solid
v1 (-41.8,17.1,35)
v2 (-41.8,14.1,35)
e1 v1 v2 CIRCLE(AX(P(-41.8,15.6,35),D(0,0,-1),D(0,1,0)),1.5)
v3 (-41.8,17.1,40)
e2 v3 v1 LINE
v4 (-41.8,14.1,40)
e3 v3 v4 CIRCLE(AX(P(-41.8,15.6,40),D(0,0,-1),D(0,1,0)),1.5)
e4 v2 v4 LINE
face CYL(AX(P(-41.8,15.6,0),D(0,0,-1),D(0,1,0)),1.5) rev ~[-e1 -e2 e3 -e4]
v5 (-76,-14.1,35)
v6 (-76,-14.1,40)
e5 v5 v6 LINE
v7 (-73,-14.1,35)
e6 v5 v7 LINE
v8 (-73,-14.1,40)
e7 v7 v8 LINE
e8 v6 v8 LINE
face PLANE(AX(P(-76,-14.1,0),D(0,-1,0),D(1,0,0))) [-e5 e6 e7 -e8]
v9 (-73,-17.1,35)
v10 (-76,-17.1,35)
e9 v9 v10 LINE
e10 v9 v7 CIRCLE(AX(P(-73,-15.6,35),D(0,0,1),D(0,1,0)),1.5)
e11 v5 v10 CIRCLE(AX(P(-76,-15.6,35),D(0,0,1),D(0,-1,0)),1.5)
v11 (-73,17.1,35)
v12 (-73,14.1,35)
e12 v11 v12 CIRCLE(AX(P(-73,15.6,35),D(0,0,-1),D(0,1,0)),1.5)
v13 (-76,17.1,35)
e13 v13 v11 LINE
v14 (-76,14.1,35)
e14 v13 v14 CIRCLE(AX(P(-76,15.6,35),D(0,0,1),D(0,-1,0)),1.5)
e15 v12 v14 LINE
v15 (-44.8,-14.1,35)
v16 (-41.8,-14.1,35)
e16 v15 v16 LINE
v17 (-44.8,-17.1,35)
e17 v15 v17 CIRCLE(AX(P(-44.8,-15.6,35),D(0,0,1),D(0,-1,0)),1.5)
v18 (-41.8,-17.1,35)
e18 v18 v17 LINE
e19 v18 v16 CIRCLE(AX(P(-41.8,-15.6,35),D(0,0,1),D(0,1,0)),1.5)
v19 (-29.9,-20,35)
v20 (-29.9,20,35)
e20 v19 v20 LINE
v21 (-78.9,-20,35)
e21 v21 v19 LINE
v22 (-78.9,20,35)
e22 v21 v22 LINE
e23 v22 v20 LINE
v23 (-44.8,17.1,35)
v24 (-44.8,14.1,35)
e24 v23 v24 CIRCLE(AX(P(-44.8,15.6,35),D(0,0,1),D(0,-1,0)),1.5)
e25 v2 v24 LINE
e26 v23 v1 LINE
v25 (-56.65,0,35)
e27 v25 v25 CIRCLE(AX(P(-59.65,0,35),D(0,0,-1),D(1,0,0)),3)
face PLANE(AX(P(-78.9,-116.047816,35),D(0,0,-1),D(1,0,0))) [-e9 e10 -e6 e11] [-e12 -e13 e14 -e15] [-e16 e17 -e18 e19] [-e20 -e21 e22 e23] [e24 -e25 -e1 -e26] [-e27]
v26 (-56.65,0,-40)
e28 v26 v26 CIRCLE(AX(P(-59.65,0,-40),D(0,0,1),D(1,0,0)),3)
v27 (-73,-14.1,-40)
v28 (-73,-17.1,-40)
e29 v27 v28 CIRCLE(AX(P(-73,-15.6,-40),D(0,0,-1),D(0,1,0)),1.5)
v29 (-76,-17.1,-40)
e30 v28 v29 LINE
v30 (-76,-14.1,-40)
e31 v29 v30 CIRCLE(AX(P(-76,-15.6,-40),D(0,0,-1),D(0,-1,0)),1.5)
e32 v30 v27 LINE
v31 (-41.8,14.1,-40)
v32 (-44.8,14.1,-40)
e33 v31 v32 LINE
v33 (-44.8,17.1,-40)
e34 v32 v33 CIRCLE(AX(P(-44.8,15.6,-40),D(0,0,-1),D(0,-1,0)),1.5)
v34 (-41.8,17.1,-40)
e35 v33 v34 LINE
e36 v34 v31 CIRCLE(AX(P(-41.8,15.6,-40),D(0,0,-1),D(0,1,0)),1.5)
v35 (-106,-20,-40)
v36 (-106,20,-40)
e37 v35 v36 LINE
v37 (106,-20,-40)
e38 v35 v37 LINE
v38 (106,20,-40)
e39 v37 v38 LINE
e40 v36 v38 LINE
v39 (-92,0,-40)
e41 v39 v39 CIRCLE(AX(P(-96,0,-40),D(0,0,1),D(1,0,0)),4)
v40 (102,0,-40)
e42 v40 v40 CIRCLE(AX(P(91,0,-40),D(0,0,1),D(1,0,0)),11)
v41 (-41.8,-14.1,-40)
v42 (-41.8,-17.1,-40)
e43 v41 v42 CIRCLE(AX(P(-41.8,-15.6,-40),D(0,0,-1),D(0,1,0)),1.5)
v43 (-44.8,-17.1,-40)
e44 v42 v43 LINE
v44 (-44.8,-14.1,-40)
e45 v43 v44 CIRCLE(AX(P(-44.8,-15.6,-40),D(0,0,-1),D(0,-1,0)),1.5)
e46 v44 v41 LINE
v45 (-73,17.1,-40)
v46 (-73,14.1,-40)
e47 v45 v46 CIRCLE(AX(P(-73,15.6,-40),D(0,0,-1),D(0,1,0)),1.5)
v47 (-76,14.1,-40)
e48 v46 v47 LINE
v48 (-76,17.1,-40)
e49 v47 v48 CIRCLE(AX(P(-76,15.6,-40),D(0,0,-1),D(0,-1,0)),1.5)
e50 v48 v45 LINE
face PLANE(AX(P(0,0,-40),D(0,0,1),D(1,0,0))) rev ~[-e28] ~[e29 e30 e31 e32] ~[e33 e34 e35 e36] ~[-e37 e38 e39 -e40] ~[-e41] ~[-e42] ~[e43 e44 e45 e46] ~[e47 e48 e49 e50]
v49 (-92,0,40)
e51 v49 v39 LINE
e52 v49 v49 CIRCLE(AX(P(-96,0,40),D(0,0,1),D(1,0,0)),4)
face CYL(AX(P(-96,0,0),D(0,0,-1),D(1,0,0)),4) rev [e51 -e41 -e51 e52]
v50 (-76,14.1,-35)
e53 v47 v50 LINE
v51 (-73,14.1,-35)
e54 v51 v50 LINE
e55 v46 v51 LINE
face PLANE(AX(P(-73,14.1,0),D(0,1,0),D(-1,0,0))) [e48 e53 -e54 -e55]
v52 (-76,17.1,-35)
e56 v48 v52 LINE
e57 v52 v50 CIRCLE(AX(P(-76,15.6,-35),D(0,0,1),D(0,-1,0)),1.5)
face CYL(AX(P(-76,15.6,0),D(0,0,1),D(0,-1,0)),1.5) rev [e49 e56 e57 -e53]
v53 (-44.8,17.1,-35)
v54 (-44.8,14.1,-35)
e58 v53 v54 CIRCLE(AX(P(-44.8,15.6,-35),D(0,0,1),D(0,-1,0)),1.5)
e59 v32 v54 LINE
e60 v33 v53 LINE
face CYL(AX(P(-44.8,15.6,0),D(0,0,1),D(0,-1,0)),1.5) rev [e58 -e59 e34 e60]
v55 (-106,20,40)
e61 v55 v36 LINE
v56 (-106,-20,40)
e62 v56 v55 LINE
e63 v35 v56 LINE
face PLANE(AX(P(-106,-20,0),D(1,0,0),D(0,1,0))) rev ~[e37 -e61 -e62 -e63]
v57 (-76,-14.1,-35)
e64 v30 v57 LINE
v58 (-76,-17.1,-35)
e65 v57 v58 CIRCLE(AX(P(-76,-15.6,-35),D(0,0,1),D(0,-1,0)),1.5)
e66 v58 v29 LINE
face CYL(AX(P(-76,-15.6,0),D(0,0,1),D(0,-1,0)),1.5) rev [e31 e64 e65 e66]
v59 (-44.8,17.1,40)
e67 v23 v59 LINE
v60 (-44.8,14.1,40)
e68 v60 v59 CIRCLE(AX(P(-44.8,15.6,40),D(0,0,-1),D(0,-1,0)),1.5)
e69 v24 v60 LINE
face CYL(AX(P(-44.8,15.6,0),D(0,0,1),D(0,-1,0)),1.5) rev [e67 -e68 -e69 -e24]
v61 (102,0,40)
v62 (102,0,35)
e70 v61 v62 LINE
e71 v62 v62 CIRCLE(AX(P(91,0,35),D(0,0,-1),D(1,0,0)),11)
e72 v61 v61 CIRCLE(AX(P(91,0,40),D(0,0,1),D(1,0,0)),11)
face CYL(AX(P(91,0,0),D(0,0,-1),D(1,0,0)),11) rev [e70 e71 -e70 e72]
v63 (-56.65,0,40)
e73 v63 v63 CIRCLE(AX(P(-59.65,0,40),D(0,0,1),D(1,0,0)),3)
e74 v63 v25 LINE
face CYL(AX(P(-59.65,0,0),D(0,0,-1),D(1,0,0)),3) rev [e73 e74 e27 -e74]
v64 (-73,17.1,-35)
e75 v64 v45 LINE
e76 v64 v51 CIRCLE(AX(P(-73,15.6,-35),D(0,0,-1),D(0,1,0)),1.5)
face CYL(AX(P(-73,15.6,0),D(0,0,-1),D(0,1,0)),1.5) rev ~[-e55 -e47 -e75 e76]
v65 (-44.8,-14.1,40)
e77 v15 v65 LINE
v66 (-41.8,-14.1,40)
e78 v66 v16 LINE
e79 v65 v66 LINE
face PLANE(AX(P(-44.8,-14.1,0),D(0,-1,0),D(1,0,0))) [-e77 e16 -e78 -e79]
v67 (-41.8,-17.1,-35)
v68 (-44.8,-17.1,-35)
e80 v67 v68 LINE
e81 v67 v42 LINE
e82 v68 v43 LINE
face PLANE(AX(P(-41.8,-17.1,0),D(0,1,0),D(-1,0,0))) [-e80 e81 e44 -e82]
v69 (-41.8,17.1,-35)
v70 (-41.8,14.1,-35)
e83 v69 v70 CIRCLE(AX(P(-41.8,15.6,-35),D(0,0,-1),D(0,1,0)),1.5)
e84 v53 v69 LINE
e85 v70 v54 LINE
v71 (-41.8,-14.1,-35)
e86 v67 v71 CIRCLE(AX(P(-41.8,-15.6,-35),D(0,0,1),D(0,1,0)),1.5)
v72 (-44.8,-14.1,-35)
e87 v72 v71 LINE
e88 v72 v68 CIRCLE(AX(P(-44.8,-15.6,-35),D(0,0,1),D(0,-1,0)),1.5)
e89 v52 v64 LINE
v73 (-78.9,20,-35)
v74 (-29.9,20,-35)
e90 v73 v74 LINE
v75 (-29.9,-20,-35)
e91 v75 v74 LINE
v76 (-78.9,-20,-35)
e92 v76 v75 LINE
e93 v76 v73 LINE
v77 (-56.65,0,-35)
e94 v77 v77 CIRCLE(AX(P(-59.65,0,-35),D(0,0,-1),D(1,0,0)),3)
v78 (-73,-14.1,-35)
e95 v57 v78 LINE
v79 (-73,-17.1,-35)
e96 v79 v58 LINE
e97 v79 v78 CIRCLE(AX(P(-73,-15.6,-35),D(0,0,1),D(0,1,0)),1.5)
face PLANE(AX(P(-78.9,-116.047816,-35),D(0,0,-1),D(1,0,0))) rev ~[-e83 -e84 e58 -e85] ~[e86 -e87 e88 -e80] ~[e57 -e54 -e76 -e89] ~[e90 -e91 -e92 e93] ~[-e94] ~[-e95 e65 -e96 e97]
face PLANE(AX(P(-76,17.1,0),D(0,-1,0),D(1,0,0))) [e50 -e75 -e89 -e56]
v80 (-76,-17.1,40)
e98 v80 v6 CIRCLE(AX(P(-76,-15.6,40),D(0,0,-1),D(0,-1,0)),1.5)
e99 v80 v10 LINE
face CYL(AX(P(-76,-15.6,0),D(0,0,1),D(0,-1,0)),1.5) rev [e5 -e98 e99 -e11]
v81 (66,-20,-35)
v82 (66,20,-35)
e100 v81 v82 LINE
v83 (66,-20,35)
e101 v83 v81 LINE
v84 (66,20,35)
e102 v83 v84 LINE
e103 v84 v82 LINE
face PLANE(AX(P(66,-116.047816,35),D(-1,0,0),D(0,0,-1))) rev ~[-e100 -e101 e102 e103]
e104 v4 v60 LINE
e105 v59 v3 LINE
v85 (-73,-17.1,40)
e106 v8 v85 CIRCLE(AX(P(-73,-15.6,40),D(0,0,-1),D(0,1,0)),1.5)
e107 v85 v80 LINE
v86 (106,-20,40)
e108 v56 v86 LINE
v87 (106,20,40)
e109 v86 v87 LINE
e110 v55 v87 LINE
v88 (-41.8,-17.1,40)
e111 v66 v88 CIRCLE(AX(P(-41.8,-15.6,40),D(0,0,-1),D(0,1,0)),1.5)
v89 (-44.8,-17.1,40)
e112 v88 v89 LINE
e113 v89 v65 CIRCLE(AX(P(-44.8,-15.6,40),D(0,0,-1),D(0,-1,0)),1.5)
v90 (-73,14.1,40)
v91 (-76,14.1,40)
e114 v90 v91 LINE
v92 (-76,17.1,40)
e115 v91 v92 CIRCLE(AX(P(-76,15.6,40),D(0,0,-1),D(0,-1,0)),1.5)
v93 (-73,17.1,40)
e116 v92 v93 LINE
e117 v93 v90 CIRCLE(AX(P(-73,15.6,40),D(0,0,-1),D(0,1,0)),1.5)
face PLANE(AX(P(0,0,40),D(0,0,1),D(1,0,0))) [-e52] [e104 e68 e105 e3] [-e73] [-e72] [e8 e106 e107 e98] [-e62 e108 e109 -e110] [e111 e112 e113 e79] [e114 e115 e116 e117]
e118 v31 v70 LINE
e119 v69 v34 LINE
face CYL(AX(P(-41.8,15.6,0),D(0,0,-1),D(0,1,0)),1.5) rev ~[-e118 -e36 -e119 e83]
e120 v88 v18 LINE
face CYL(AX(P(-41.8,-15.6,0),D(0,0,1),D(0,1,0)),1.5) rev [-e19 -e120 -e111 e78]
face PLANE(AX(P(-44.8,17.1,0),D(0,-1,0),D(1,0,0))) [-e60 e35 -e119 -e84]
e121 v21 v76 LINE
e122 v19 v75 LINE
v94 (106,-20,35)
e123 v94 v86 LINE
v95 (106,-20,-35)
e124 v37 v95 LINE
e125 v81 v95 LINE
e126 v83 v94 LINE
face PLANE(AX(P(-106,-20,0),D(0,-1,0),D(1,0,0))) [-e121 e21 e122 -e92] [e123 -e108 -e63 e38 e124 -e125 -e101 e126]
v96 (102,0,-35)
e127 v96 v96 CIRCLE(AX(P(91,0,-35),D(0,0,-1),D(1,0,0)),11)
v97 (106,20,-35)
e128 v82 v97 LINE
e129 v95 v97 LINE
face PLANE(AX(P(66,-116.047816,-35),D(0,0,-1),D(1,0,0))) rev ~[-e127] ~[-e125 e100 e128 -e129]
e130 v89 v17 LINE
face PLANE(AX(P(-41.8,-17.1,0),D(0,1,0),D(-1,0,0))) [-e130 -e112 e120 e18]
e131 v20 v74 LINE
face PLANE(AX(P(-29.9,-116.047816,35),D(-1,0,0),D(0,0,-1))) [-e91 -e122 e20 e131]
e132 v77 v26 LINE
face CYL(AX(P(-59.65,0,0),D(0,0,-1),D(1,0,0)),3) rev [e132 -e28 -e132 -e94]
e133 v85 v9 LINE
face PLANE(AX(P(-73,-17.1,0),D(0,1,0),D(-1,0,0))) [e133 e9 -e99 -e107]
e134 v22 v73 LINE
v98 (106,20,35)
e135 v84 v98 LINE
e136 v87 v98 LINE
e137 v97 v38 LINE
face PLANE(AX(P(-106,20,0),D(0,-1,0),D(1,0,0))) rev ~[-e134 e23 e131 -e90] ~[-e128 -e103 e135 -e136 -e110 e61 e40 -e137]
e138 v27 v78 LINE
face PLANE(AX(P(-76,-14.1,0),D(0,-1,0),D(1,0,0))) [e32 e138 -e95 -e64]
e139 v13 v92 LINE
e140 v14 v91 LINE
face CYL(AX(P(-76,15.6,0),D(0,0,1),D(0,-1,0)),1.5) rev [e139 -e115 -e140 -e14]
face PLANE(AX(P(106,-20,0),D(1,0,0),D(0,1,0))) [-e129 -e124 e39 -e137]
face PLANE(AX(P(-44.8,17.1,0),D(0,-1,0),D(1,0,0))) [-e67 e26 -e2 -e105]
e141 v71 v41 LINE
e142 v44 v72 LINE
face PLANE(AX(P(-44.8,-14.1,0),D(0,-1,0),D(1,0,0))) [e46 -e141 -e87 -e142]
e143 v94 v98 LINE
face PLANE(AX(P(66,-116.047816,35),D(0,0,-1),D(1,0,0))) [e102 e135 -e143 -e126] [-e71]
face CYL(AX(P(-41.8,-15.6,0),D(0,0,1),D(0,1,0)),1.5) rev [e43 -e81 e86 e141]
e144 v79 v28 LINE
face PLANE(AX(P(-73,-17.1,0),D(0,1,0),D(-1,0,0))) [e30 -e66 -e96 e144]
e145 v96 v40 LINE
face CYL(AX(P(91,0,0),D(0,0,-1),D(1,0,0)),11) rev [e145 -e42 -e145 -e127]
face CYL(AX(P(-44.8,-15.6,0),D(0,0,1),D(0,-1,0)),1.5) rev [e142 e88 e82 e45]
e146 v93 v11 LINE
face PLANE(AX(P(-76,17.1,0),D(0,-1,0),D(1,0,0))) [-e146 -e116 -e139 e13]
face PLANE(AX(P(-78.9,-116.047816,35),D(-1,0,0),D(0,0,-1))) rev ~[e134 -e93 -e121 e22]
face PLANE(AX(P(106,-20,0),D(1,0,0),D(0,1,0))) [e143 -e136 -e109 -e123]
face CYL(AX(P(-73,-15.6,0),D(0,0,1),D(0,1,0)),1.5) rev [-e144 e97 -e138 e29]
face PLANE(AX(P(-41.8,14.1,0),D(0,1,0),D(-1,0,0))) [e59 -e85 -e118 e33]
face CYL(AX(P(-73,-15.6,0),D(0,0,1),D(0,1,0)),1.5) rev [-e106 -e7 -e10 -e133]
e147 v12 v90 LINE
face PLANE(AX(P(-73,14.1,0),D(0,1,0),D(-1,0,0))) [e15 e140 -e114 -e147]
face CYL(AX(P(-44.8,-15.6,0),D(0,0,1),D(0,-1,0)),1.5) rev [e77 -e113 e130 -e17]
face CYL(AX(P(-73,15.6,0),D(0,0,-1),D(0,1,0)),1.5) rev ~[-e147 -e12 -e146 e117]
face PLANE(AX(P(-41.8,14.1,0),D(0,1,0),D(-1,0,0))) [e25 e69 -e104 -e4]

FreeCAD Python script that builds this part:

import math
import FreeCAD as App
import Part
import Sketcher

V = App.Vector
Q = App.Units.Quantity

doc = App.newDocument("Part")
params = doc.addObject("Spreadsheet::Sheet", "Params")
for row, (alias, value) in enumerate([
    ("sketch1_diameter", "8 mm"),
    ("sketch1_diameter2", "6 mm"),
    ("sketch1_diameter3", "22 mm"),
    ("sketch1_radius", "1.5 mm"),
    ("sketch1_width", "212 mm"),
    ("pad1_length", "80 mm"),
    ("sketch2_width", "49 mm"),
    ("sketch2_width2", "40 mm"),
    ("sketch2_height", "70 mm"),
], start=1):
    params.set(f"A{row}", alias)
    params.set(f"B{row}", "=" + value)
    params.setAlias(f"B{row}", alias)

body = doc.addObject("PartDesign::Body", "Body")

sketch1 = body.newObject("Sketcher::SketchObject", "Sketch")
sketch1.AttachmentSupport = (doc.getObject("XY_Plane"), [""])
sketch1.MapMode = "FlatFace"
sketch1.addGeometry([
    Part.LineSegment(V(-106, 20, 0), V(-106, -20, 0)),
    Part.LineSegment(V(-106, -20, 0), V(106, -20, 0)),
    Part.LineSegment(V(106, -20, 0), V(106, 20, 0)),
    Part.LineSegment(V(106, 20, 0), V(-106, 20, 0)),
    Part.ArcOfCircle(Part.Circle(V(-76, -15.6, 0), V(0, 0, 1), 1.5), math.radians(90), math.radians(270)),
    Part.LineSegment(V(-76, -14.1, 0), V(-73, -14.1, 0)),
    Part.ArcOfCircle(Part.Circle(V(-73, -15.6, 0), V(0, 0, 1), 1.5), math.radians(-90), math.radians(90)),
    Part.LineSegment(V(-73, -17.1, 0), V(-76, -17.1, 0)),
    Part.ArcOfCircle(Part.Circle(V(-44.8, -15.6, 0), V(0, 0, 1), 1.5), math.radians(90), math.radians(270)),
    Part.LineSegment(V(-44.8, -14.1, 0), V(-41.8, -14.1, 0)),
    Part.ArcOfCircle(Part.Circle(V(-41.8, -15.6, 0), V(0, 0, 1), 1.5), math.radians(-90), math.radians(90)),
    Part.LineSegment(V(-41.8, -17.1, 0), V(-44.8, -17.1, 0)),
    Part.Circle(V(-96, 0, 0), V(0, 0, 1), 4),
    Part.Circle(V(-59.65, 0, 0), V(0, 0, 1), 3),
    Part.ArcOfCircle(Part.Circle(V(-76, 15.6, 0), V(0, 0, 1), 1.5), math.radians(90), math.radians(270)),
    Part.LineSegment(V(-76, 17.1, 0), V(-73, 17.1, 0)),
    Part.ArcOfCircle(Part.Circle(V(-73, 15.6, 0), V(0, 0, 1), 1.5), math.radians(-90), math.radians(90)),
    Part.LineSegment(V(-73, 14.1, 0), V(-76, 14.1, 0)),
    Part.ArcOfCircle(Part.Circle(V(-44.8, 15.6, 0), V(0, 0, 1), 1.5), math.radians(90), math.radians(270)),
    Part.LineSegment(V(-44.8, 17.1, 0), V(-41.8, 17.1, 0)),
    Part.ArcOfCircle(Part.Circle(V(-41.8, 15.6, 0), V(0, 0, 1), 1.5), math.radians(-90), math.radians(90)),
    Part.LineSegment(V(-41.8, 14.1, 0), V(-44.8, 14.1, 0)),
    Part.Circle(V(91, 0, 0), V(0, 0, 1), 11),
], False)
sketch1.addConstraint([
    Sketcher.Constraint("Coincident", 0, 2, 1, 1),
    Sketcher.Constraint("Coincident", 1, 2, 2, 1),
    Sketcher.Constraint("Coincident", 2, 2, 3, 1),
    Sketcher.Constraint("Coincident", 3, 2, 0, 1),
    Sketcher.Constraint("Tangent", 4, 1, 5, 1),
    Sketcher.Constraint("Tangent", 5, 2, 6, 2),
    Sketcher.Constraint("Tangent", 6, 1, 7, 1),
    Sketcher.Constraint("Tangent", 7, 2, 4, 2),
    Sketcher.Constraint("Tangent", 8, 1, 9, 1),
    Sketcher.Constraint("Tangent", 9, 2, 10, 2),
    Sketcher.Constraint("Tangent", 10, 1, 11, 1),
    Sketcher.Constraint("Tangent", 11, 2, 8, 2),
    Sketcher.Constraint("Tangent", 14, 1, 15, 1),
    Sketcher.Constraint("Tangent", 15, 2, 16, 2),
    Sketcher.Constraint("Tangent", 16, 1, 17, 1),
    Sketcher.Constraint("Tangent", 17, 2, 14, 2),
    Sketcher.Constraint("Tangent", 18, 1, 19, 1),
    Sketcher.Constraint("Tangent", 19, 2, 20, 2),
    Sketcher.Constraint("Tangent", 20, 1, 21, 1),
    Sketcher.Constraint("Tangent", 21, 2, 18, 2),
    Sketcher.Constraint("Vertical", 0),
    Sketcher.Constraint("Horizontal", 1),
    Sketcher.Constraint("Vertical", 2),
    Sketcher.Constraint("Horizontal", 3),
    Sketcher.Constraint("Horizontal", 5),
    Sketcher.Constraint("Horizontal", 7),
    Sketcher.Constraint("Horizontal", 9),
    Sketcher.Constraint("Horizontal", 11),
    Sketcher.Constraint("Horizontal", 15),
    Sketcher.Constraint("Horizontal", 17),
    Sketcher.Constraint("Horizontal", 19),
    Sketcher.Constraint("Horizontal", 21),
    Sketcher.Constraint("Equal", 6, 8),
    Sketcher.Constraint("Equal", 10, 14),
    Sketcher.Constraint("Equal", 16, 18),
    Sketcher.Constraint("Symmetric", 0, 2, 2, 2, -1, 1),
    Sketcher.Constraint("Symmetric", 4, 3, 14, 3, -1),
    Sketcher.Constraint("Symmetric", 8, 3, 18, 3, -1),
    Sketcher.Constraint("PointOnObject", 12, 3, -1),
    Sketcher.Constraint("PointOnObject", 13, 3, -1),
    Sketcher.Constraint("PointOnObject", 22, 3, -1),
    Sketcher.Constraint("Horizontal", 6, 3, 8, 3),
    Sketcher.Constraint("Vertical", 6, 3, 16, 3),
    Sketcher.Constraint("Vertical", 10, 3, 20, 3),
    Sketcher.Constraint("Equal", 7, 9),
    Sketcher.Constraint("Diameter", 12, Q("8 mm")),
    Sketcher.Constraint("Diameter", 13, Q("6 mm")),
    Sketcher.Constraint("Diameter", 22, Q("22 mm")),
    Sketcher.Constraint("Radius", 4, Q("1.5 mm")),
    Sketcher.Constraint("DistanceX", 1, 1, 1, 2, Q("212 mm")),
    Sketcher.Constraint("DistanceX", 5, 1, 5, 2, Q("3 mm")),
    Sketcher.Constraint("DistanceY", 0, 2, 0, 1, Q("40 mm")),
    Sketcher.Constraint("DistanceX", 4, 3, -1, 1, Q("76 mm")),
    Sketcher.Constraint("DistanceX", 12, 3, -1, 1, Q("96 mm")),
    Sketcher.Constraint("DistanceX", -1, 1, 22, 3, Q("91 mm")),
    Sketcher.Constraint("DistanceY", 4, 3, -1, 1, Q("15.6 mm")),
    Sketcher.Constraint("DistanceX", 8, 3, -1, 1, Q("44.8 mm")),
    Sketcher.Constraint("DistanceX", 13, 3, -1, 1, Q("59.65 mm")),
])
sketch1.setExpression("Constraints[45]", "Params.sketch1_diameter")
sketch1.setExpression("Constraints[46]", "Params.sketch1_diameter2")
sketch1.setExpression("Constraints[47]", "Params.sketch1_diameter3")
sketch1.setExpression("Constraints[48]", "Params.sketch1_radius")
sketch1.setExpression("Constraints[49]", "Params.sketch1_width")
pad1 = body.newObject("PartDesign::Pad", "Pad")
pad1.Profile = sketch1
pad1.setExpression("Length", "Params.pad1_length")
pad1.Midplane = True

sketch2 = body.newObject("Sketcher::SketchObject", "Sketch001")
sketch2.AttachmentSupport = (doc.getObject("XZ_Plane"), [""])
sketch2.MapMode = "FlatFace"
sketch2.addGeometry([
    Part.LineSegment(V(-78.9, -35, 0), V(-78.9, 35, 0)),
    Part.LineSegment(V(-78.9, 35, 0), V(-29.9, 35, 0)),
    Part.LineSegment(V(-29.9, 35, 0), V(-29.9, -35, 0)),
    Part.LineSegment(V(-29.9, -35, 0), V(-78.9, -35, 0)),
    Part.LineSegment(V(66, -35, 0), V(66, 35, 0)),
    Part.LineSegment(V(66, 35, 0), V(106, 35, 0)),
    Part.LineSegment(V(106, 35, 0), V(106, -35, 0)),
    Part.LineSegment(V(106, -35, 0), V(66, -35, 0)),
], False)
sketch2.addConstraint([
    Sketcher.Constraint("Coincident", 0, 2, 1, 1),
    Sketcher.Constraint("Coincident", 1, 2, 2, 1),
    Sketcher.Constraint("Coincident", 2, 2, 3, 1),
    Sketcher.Constraint("Coincident", 3, 2, 0, 1),
    Sketcher.Constraint("Coincident", 4, 2, 5, 1),
    Sketcher.Constraint("Coincident", 5, 2, 6, 1),
    Sketcher.Constraint("Coincident", 6, 2, 7, 1),
    Sketcher.Constraint("Coincident", 7, 2, 4, 1),
    Sketcher.Constraint("Vertical", 0),
    Sketcher.Constraint("Horizontal", 1),
    Sketcher.Constraint("Vertical", 2),
    Sketcher.Constraint("Horizontal", 3),
    Sketcher.Constraint("Vertical", 4),
    Sketcher.Constraint("Horizontal", 5),
    Sketcher.Constraint("Vertical", 6),
    Sketcher.Constraint("Horizontal", 7),
    Sketcher.Constraint("Horizontal", 1, 2, 4, 2),
    Sketcher.Constraint("Horizontal", 3, 2, 6, 2),
    Sketcher.Constraint("DistanceX", 1, 1, 1, 2, Q("49 mm")),
    Sketcher.Constraint("DistanceX", 5, 1, 5, 2, Q("40 mm")),
    Sketcher.Constraint("DistanceY", 0, 1, 0, 2, Q("70 mm")),
    Sketcher.Constraint("DistanceY", -1, 1, 0, 2, Q("35 mm")),
    Sketcher.Constraint("DistanceX", -1, 1, 4, 2, Q("66 mm")),
    Sketcher.Constraint("DistanceX", 0, 2, -1, 1, Q("78.9 mm")),
])
sketch2.setExpression("Constraints[18]", "Params.sketch2_width")
sketch2.setExpression("Constraints[19]", "Params.sketch2_width2")
sketch2.setExpression("Constraints[20]", "Params.sketch2_height")
pocket1 = body.newObject("PartDesign::Pocket", "Pocket")
pocket1.Profile = sketch2
pocket1.Type = "ThroughAll"
pocket1.Midplane = True

doc.recompute()
